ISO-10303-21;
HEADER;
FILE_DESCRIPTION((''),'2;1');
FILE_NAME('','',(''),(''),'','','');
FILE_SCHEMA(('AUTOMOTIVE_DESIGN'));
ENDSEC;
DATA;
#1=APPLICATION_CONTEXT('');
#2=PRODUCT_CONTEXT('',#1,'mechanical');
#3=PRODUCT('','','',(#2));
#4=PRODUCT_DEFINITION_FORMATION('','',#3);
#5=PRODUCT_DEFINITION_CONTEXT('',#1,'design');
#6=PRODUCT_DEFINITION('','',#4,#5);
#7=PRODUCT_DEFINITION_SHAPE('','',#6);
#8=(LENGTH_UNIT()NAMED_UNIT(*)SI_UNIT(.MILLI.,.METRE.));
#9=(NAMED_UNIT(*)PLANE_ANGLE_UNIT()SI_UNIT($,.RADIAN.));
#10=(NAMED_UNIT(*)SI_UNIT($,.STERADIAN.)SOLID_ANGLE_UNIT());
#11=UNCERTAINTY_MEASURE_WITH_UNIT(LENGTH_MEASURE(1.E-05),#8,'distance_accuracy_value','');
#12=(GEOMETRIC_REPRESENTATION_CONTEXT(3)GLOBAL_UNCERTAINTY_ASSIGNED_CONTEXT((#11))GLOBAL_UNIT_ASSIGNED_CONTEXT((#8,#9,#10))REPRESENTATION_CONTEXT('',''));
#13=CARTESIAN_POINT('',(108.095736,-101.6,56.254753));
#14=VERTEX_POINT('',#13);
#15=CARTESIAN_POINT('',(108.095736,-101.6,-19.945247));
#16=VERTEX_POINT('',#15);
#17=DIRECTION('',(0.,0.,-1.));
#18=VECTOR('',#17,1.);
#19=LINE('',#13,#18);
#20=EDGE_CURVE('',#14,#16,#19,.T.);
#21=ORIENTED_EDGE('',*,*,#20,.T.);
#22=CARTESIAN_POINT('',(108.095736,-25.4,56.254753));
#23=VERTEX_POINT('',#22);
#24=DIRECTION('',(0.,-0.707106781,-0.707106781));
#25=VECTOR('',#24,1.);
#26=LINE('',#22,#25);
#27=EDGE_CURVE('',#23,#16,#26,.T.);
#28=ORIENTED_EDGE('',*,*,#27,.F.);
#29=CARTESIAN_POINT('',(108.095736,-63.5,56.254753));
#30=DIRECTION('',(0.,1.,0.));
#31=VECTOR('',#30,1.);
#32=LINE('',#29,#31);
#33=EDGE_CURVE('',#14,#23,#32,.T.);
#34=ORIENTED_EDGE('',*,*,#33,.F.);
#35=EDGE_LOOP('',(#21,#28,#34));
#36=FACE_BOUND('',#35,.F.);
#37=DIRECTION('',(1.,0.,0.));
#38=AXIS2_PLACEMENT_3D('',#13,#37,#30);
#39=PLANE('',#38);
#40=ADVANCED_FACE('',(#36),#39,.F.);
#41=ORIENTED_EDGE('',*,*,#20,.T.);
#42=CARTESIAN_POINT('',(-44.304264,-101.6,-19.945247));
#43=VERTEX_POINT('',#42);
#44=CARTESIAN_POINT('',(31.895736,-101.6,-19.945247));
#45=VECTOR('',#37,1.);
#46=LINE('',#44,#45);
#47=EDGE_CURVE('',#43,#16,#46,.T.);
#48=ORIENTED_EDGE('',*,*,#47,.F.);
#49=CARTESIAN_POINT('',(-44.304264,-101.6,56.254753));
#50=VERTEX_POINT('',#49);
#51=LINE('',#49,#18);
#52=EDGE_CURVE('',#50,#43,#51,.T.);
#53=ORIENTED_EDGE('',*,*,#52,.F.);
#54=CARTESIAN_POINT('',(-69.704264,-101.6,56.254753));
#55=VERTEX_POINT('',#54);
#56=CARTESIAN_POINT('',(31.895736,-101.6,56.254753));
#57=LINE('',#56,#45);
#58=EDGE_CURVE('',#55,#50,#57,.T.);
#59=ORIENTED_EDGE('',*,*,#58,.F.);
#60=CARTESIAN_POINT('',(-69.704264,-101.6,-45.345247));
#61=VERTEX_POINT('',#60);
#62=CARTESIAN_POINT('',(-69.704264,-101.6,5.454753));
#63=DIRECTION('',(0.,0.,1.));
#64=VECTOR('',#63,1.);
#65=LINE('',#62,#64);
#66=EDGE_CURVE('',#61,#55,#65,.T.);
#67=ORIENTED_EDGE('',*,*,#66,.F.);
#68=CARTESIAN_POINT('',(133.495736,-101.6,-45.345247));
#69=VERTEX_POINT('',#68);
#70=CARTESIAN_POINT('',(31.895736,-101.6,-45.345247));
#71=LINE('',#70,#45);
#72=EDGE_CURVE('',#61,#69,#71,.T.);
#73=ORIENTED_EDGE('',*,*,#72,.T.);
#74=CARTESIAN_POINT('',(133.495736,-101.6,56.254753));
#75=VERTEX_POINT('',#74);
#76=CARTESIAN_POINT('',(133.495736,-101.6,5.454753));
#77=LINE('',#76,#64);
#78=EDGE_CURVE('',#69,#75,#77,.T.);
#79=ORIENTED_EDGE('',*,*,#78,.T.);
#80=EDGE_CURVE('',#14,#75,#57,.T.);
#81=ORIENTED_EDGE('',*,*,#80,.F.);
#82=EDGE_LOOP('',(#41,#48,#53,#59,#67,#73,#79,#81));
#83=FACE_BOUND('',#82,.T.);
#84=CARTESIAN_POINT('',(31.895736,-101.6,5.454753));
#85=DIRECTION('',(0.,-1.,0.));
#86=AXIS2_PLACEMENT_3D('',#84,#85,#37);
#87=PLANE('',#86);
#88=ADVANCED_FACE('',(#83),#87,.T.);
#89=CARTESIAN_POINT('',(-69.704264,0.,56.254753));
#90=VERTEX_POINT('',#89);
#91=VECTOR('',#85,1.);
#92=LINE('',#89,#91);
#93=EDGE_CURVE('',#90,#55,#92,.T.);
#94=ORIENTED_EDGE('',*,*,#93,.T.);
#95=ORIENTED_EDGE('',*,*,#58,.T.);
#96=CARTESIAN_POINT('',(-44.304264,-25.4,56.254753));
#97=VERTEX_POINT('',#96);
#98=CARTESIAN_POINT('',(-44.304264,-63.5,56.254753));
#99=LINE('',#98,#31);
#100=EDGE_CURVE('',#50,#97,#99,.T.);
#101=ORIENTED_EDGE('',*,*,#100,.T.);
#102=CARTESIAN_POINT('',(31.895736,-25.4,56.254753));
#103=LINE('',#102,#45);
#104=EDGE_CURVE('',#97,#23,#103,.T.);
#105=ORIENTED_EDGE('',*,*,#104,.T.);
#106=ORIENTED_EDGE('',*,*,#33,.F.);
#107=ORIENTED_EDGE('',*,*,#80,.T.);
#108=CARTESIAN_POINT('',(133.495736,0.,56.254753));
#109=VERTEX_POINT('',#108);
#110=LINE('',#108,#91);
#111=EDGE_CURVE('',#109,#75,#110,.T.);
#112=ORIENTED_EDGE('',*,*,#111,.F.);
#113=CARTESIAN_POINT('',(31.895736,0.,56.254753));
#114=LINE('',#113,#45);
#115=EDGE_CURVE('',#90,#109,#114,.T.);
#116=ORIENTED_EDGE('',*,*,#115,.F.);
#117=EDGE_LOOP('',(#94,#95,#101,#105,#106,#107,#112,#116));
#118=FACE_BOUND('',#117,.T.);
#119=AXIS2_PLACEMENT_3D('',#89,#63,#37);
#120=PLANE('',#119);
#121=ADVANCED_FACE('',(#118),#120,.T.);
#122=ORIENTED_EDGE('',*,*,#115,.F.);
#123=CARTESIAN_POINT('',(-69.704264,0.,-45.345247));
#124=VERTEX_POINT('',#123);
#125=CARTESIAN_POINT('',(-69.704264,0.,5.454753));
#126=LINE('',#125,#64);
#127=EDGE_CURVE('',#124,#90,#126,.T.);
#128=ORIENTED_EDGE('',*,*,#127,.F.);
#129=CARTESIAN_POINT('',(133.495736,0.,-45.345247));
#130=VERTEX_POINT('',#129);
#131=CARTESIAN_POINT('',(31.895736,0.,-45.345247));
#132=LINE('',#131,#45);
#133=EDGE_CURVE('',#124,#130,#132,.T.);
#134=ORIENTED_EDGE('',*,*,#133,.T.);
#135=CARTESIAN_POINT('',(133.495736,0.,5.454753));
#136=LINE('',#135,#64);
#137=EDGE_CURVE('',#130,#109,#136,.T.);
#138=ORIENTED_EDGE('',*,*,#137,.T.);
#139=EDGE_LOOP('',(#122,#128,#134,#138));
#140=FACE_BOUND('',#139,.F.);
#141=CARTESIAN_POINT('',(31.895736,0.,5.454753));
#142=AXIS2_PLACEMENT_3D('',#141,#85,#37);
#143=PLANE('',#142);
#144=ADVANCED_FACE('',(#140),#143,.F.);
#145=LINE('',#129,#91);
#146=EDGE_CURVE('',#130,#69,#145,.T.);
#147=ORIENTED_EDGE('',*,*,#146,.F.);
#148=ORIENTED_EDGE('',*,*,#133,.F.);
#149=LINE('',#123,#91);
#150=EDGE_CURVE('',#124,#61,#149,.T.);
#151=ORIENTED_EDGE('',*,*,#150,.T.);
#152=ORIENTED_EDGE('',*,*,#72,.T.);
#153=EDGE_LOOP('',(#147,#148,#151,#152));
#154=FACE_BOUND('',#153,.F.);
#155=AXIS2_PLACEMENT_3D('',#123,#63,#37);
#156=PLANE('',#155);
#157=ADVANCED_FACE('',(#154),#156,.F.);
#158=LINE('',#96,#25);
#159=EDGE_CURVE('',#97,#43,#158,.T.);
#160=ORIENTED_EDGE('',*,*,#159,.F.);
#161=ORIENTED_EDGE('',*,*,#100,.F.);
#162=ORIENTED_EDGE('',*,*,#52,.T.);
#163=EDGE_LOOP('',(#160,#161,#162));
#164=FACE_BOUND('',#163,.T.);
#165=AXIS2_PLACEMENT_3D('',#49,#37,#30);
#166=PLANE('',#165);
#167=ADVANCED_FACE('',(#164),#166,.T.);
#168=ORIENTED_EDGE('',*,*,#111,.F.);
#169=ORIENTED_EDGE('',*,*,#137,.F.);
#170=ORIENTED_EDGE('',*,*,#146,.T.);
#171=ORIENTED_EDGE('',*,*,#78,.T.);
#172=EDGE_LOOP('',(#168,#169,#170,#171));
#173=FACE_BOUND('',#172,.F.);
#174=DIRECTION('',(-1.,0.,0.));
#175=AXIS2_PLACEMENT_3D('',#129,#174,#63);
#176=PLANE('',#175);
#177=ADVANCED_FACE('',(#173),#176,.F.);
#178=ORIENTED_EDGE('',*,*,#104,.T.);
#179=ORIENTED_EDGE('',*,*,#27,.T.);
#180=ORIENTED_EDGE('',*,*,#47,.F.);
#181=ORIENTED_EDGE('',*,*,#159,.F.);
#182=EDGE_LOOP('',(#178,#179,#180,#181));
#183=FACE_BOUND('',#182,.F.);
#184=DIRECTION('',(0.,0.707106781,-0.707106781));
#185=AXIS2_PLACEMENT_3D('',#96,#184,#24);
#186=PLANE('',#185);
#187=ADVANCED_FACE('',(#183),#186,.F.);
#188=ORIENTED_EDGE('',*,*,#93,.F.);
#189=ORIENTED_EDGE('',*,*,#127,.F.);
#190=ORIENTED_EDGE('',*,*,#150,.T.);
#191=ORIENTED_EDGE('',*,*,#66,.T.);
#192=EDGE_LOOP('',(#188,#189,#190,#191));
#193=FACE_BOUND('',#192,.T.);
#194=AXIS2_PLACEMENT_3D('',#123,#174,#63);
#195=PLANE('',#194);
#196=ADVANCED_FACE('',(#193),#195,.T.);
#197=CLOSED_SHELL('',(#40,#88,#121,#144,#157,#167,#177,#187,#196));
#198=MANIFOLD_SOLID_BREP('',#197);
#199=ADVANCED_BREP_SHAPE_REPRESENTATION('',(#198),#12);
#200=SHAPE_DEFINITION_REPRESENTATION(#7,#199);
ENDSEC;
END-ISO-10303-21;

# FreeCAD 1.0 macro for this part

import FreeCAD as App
import Part
import Sketcher

V = App.Vector
Q = App.Units.Quantity


def add_polygon(sketch, points):
    """Adds a closed chain of lines whose ends are joined by coincident constraints."""
    first, n = sketch.GeometryCount, len(points)
    for a, b in zip(points, points[1:] + points[:1]):
        sketch.addGeometry(Part.LineSegment(App.Vector(*a, 0), App.Vector(*b, 0)), False)
    for i in range(n):
        sketch.addConstraint(Sketcher.Constraint("Coincident", first + i, 2, first + (i + 1) % n, 1))

doc = App.newDocument("Part")
body = doc.addObject("PartDesign::Body", "Body")

# Sketch on XZ plane
sketch1 = body.newObject("Sketcher::SketchObject", "Sketch")
sketch1.AttachmentSupport = (doc.getObject("XZ_Plane"), [""])
sketch1.MapMode = "FlatFace"
add_polygon(sketch1, [(-70, 56), (-70, -45), (133, -45), (133, 56)])  # lines 0-3
sketch1.addConstraint([
    Sketcher.Constraint("Vertical", 0),
    Sketcher.Constraint("Horizontal", 1),
    Sketcher.Constraint("Vertical", 2),
    Sketcher.Constraint("Horizontal", 3),
    Sketcher.Constraint("DistanceX", 1, 1, 1, 2, Q("8 in")),
    Sketcher.Constraint("DistanceY", 0, 2, 0, 1, Q("4 in")),
    Sketcher.Constraint("DistanceX", 0, 2, -1, 1, Q("69.704264 mm")),
    Sketcher.Constraint("DistanceY", 0, 2, -1, 1, Q("45.345247 mm")),
])
pad1 = body.newObject("PartDesign::Pad", "Pad")
pad1.Profile = sketch1
pad1.Length = Q("4 in")

# Sketch on XY plane
sketch2 = body.newObject("Sketcher::SketchObject", "Sketch001")
sketch2.AttachmentSupport = (doc.getObject("XY_Plane"), [""])
sketch2.MapMode = "FlatFace"
sketch2.AttachmentOffset = App.Placement(V(0, 0, 56.254753), App.Rotation())
add_polygon(sketch2, [(-44, -25), (-44, -102), (108, -102), (108, -25)])  # lines 0-3
sketch2.addConstraint([
    Sketcher.Constraint("Vertical", 0),
    Sketcher.Constraint("Horizontal", 1),
    Sketcher.Constraint("Vertical", 2),
    Sketcher.Constraint("Horizontal", 3),
    Sketcher.Constraint("DistanceX", 1, 1, 1, 2, Q("6 in")),
    Sketcher.Constraint("DistanceY", 0, 2, 0, 1, Q("3 in")),
    Sketcher.Constraint("DistanceY", 0, 2, -1, 1, Q("4 in")),
    Sketcher.Constraint("DistanceX", 0, 2, -1, 1, Q("44.304264 mm")),
])
pocket1 = body.newObject("PartDesign::Pocket", "Pocket")
pocket1.Profile = sketch2
pocket1.Length = Q("3 in")

# Sketch on YZ plane
sketch3 = body.newObject("Sketcher::SketchObject", "Sketch002")
sketch3.AttachmentSupport = (doc.getObject("YZ_Plane"), [""])
sketch3.MapMode = "FlatFace"
sketch3.AttachmentOffset = App.Placement(V(0, 0, -44.304264), App.Rotation())
add_polygon(sketch3, [(-25, 56), (-102, -20), (-25, -20)])  # lines 0-2
sketch3.addConstraint([
    Sketcher.Constraint("Horizontal", 1),
    Sketcher.Constraint("Vertical", 2),
    Sketcher.Constraint("Equal", 1, 2),
    Sketcher.Constraint("DistanceX", 1, 1, 1, 2, Q("3 in")),
    Sketcher.Constraint("DistanceX", 0, 2, -1, 1, Q("4 in")),
    Sketcher.Constraint("DistanceY", 0, 2, -1, 1, Q("19.945247 mm")),
])
pad2 = body.newObject("PartDesign::Pad", "Pad001")
pad2.Profile = sketch3
pad2.Length = Q("6 in")

doc.recompute()
